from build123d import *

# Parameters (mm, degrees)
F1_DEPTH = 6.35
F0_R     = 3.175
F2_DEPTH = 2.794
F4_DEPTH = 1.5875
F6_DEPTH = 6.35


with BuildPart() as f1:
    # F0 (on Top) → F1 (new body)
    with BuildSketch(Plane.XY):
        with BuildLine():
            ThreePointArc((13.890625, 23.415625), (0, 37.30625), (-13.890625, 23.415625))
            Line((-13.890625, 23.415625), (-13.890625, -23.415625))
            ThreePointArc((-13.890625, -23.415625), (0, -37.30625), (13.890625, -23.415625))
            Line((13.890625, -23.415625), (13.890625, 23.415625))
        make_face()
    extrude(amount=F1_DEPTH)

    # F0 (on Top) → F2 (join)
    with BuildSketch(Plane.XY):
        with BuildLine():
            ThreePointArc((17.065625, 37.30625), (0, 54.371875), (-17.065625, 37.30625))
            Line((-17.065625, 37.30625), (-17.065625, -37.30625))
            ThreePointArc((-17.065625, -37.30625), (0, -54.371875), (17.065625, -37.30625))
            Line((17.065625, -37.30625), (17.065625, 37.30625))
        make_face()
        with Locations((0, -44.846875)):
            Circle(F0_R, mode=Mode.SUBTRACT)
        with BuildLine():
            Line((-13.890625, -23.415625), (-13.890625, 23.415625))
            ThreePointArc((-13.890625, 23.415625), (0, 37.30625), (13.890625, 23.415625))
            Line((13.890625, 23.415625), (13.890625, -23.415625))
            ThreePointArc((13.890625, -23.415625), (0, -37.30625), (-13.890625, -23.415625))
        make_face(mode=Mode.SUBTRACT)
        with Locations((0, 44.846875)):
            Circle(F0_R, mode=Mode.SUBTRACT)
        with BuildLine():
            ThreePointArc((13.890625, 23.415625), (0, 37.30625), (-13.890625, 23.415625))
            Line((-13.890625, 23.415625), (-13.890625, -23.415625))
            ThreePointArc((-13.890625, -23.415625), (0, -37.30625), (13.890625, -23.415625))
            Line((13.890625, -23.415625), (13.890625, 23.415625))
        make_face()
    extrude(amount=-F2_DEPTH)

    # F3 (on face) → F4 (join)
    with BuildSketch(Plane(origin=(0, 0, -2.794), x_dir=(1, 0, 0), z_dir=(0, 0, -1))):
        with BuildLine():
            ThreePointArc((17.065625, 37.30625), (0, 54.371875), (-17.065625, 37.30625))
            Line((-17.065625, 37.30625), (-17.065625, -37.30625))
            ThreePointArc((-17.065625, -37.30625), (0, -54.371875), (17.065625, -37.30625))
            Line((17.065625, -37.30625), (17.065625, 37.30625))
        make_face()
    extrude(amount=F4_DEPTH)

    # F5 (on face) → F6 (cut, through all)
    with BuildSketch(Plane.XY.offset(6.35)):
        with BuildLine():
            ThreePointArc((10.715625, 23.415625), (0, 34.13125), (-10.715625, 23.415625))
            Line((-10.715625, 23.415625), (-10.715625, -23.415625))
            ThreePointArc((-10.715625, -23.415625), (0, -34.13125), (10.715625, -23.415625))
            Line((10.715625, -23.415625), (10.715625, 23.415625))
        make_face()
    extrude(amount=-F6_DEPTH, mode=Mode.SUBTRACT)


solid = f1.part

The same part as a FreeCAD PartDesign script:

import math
import FreeCAD as App
import Part
import Sketcher
Q = App.Units.Quantity

doc = App.newDocument("Part")
params = doc.addObject("Spreadsheet::Sheet", "Params")
for row, (alias, value) in enumerate([
    ("sketch1_radius", "0.546875 in"),
    ("sketch1_height", "1.84375 in"),
    ("pad1_length", "0.25 in"),
    ("sketch2_diameter", "0.25 in"),
    ("sketch2_radius", "0.671875 in"),
    ("sketch2_height", "2.9375 in"),
    ("pad2_length", "0.11 in"),
    ("sketch3_radius", "0.671875 in"),
    ("sketch3_height", "2.9375 in"),
    ("pad3_length", "0.0625 in"),
    ("sketch4_radius", "0.421875 in"),
    ("sketch4_height", "1.84375 in"),
    ("pocket1_length", "0.25 in"),
], start=1):
    params.set(f"A{row}", alias)
    params.set(f"B{row}", "=" + value)
    params.setAlias(f"B{row}", alias)

body = doc.addObject("PartDesign::Body", "Body")

# Sketch on XY plane
sketch1 = body.newObject("Sketcher::SketchObject", "Sketch")
sketch1.AttachmentSupport = (doc.getObject("XY_Plane"), [""])
sketch1.MapMode = "FlatFace"
sketch1.addGeometry([
    Part.ArcOfCircle(Part.Circle(App.Vector(0, 23, 0), App.Vector(0, 0, 1), 14), math.radians(0), math.radians(180)),
    Part.LineSegment(App.Vector(-14, 23, 0), App.Vector(-14, -23, 0)),
    Part.ArcOfCircle(Part.Circle(App.Vector(0, -23, 0), App.Vector(0, 0, 1), 14), math.radians(180), math.radians(360)),
    Part.LineSegment(App.Vector(14, -23, 0), App.Vector(14, 23, 0)),
], False)
sketch1.addConstraint([
    Sketcher.Constraint("Tangent", 0, 2, 1, 1),
    Sketcher.Constraint("Tangent", 1, 2, 2, 1),
    Sketcher.Constraint("Tangent", 2, 2, 3, 1),
    Sketcher.Constraint("Tangent", 3, 2, 0, 1),
    Sketcher.Constraint("Vertical", 1),
    Sketcher.Constraint("Vertical", 3),
    Sketcher.Constraint("Symmetric", 0, 3, 2, 3, -1, 1),
    Sketcher.Constraint("Radius", 0, Q("0.546875 in")),
    Sketcher.Constraint("DistanceY", 1, 2, 1, 1, Q("1.84375 in")),
])
sketch1.setExpression("Constraints[7]", "Params.sketch1_radius")
sketch1.setExpression("Constraints[8]", "Params.sketch1_height")
pad1 = body.newObject("PartDesign::Pad", "Pad")
pad1.Profile = sketch1
pad1.setExpression("Length", "Params.pad1_length")

# Sketch on XY plane
sketch2 = body.newObject("Sketcher::SketchObject", "Sketch001")
sketch2.AttachmentSupport = (doc.getObject("XY_Plane"), [""])
sketch2.MapMode = "FlatFace"
sketch2.addGeometry([
    Part.ArcOfCircle(Part.Circle(App.Vector(0, 37.3, 0), App.Vector(0, 0, 1), 17.1), math.radians(0), math.radians(180)),  # 0
    Part.LineSegment(App.Vector(-17.1, 37.3, 0), App.Vector(-17.1, -37.3, 0)),  # 1
    Part.ArcOfCircle(Part.Circle(App.Vector(0, -37.3, 0), App.Vector(0, 0, 1), 17.1), math.radians(180), math.radians(360)),  # 2
    Part.LineSegment(App.Vector(17.1, -37.3, 0), App.Vector(17.1, 37.3, 0)),  # 3
    Part.Circle(App.Vector(0, -44.8, 0), App.Vector(0, 0, 1), 3.2),  # 4
    Part.Circle(App.Vector(0, 44.8, 0), App.Vector(0, 0, 1), 3.2),  # 5
], False)
sketch2.addConstraint([
    Sketcher.Constraint("Tangent", 0, 2, 1, 1),
    Sketcher.Constraint("Tangent", 1, 2, 2, 1),
    Sketcher.Constraint("Tangent", 2, 2, 3, 1),
    Sketcher.Constraint("Tangent", 3, 2, 0, 1),
    Sketcher.Constraint("Vertical", 1),
    Sketcher.Constraint("Vertical", 3),
    Sketcher.Constraint("Equal", 4, 5),
    Sketcher.Constraint("Symmetric", 0, 3, 2, 3, -1, 1),
    Sketcher.Constraint("Symmetric", 4, 3, 5, 3, -1, 1),
    Sketcher.Constraint("PointOnObject", 4, 3, -2),
    Sketcher.Constraint("Diameter", 4, Q("0.25 in")),
    Sketcher.Constraint("Radius", 0, Q("0.671875 in")),
    Sketcher.Constraint("DistanceY", 1, 2, 1, 1, Q("2.9375 in")),
    Sketcher.Constraint("DistanceY", 4, 3, -1, 1, Q("1.765625 in")),
])
sketch2.setExpression("Constraints[10]", "Params.sketch2_diameter")
sketch2.setExpression("Constraints[11]", "Params.sketch2_radius")
sketch2.setExpression("Constraints[12]", "Params.sketch2_height")
pad2 = body.newObject("PartDesign::Pad", "Pad001")
pad2.Profile = sketch2
pad2.setExpression("Length", "Params.pad2_length")
pad2.Reversed = True

# Sketch on XY plane
sketch3 = body.newObject("Sketcher::SketchObject", "Sketch002")
sketch3.AttachmentSupport = (doc.getObject("XY_Plane"), [""])
sketch3.MapMode = "FlatFace"
sketch3.AttachmentOffset = App.Placement(App.Vector(0, 0, -0.11 * 25.4), App.Rotation())
sketch3.addGeometry([
    Part.ArcOfCircle(Part.Circle(App.Vector(0, -37, 0), App.Vector(0, 0, 1), 17), math.radians(180), math.radians(360)),
    Part.LineSegment(App.Vector(-17, -37, 0), App.Vector(-17, 37, 0)),
    Part.ArcOfCircle(Part.Circle(App.Vector(0, 37, 0), App.Vector(0, 0, 1), 17), math.radians(0), math.radians(180)),
    Part.LineSegment(App.Vector(17, 37, 0), App.Vector(17, -37, 0)),
], False)
sketch3.addConstraint([
    Sketcher.Constraint("Tangent", 0, 1, 1, 1),
    Sketcher.Constraint("Tangent", 1, 2, 2, 2),
    Sketcher.Constraint("Tangent", 2, 1, 3, 1),
    Sketcher.Constraint("Tangent", 3, 2, 0, 2),
    Sketcher.Constraint("Vertical", 1),
    Sketcher.Constraint("Vertical", 3),
    Sketcher.Constraint("Symmetric", 0, 3, 2, 3, -1, 1),
    Sketcher.Constraint("Radius", 0, Q("0.671875 in")),
    Sketcher.Constraint("DistanceY", 1, 1, 1, 2, Q("2.9375 in")),
])
sketch3.setExpression("Constraints[7]", "Params.sketch3_radius")
sketch3.setExpression("Constraints[8]", "Params.sketch3_height")
pad3 = body.newObject("PartDesign::Pad", "Pad002")
pad3.Profile = sketch3
pad3.setExpression("Length", "Params.pad3_length")
pad3.Reversed = True

# Sketch on XY plane
sketch4 = body.newObject("Sketcher::SketchObject", "Sketch003")
sketch4.AttachmentSupport = (doc.getObject("XY_Plane"), [""])
sketch4.MapMode = "FlatFace"
sketch4.AttachmentOffset = App.Placement(App.Vector(0, 0, 0.25 * 25.4), App.Rotation())
sketch4.addGeometry([
    Part.ArcOfCircle(Part.Circle(App.Vector(0, 23, 0), App.Vector(0, 0, 1), 11), math.radians(0), math.radians(180)),
    Part.LineSegment(App.Vector(-11, 23, 0), App.Vector(-11, -23, 0)),
    Part.ArcOfCircle(Part.Circle(App.Vector(0, -23, 0), App.Vector(0, 0, 1), 11), math.radians(180), math.radians(360)),
    Part.LineSegment(App.Vector(11, -23, 0), App.Vector(11, 23, 0)),
], False)
sketch4.addConstraint([
    Sketcher.Constraint("Tangent", 0, 2, 1, 1),
    Sketcher.Constraint("Tangent", 1, 2, 2, 1),
    Sketcher.Constraint("Tangent", 2, 2, 3, 1),
    Sketcher.Constraint("Tangent", 3, 2, 0, 1),
    Sketcher.Constraint("Vertical", 1),
    Sketcher.Constraint("Vertical", 3),
    Sketcher.Constraint("Symmetric", 0, 3, 2, 3, -1, 1),
    Sketcher.Constraint("Radius", 0, Q("0.421875 in")),
    Sketcher.Constraint("DistanceY", 1, 2, 1, 1, Q("1.84375 in")),
])
sketch4.setExpression("Constraints[7]", "Params.sketch4_radius")
sketch4.setExpression("Constraints[8]", "Params.sketch4_height")
pocket1 = body.newObject("PartDesign::Pocket", "Pocket")
pocket1.Profile = sketch4
pocket1.setExpression("Length", "Params.pocket1_length")

doc.recompute()
